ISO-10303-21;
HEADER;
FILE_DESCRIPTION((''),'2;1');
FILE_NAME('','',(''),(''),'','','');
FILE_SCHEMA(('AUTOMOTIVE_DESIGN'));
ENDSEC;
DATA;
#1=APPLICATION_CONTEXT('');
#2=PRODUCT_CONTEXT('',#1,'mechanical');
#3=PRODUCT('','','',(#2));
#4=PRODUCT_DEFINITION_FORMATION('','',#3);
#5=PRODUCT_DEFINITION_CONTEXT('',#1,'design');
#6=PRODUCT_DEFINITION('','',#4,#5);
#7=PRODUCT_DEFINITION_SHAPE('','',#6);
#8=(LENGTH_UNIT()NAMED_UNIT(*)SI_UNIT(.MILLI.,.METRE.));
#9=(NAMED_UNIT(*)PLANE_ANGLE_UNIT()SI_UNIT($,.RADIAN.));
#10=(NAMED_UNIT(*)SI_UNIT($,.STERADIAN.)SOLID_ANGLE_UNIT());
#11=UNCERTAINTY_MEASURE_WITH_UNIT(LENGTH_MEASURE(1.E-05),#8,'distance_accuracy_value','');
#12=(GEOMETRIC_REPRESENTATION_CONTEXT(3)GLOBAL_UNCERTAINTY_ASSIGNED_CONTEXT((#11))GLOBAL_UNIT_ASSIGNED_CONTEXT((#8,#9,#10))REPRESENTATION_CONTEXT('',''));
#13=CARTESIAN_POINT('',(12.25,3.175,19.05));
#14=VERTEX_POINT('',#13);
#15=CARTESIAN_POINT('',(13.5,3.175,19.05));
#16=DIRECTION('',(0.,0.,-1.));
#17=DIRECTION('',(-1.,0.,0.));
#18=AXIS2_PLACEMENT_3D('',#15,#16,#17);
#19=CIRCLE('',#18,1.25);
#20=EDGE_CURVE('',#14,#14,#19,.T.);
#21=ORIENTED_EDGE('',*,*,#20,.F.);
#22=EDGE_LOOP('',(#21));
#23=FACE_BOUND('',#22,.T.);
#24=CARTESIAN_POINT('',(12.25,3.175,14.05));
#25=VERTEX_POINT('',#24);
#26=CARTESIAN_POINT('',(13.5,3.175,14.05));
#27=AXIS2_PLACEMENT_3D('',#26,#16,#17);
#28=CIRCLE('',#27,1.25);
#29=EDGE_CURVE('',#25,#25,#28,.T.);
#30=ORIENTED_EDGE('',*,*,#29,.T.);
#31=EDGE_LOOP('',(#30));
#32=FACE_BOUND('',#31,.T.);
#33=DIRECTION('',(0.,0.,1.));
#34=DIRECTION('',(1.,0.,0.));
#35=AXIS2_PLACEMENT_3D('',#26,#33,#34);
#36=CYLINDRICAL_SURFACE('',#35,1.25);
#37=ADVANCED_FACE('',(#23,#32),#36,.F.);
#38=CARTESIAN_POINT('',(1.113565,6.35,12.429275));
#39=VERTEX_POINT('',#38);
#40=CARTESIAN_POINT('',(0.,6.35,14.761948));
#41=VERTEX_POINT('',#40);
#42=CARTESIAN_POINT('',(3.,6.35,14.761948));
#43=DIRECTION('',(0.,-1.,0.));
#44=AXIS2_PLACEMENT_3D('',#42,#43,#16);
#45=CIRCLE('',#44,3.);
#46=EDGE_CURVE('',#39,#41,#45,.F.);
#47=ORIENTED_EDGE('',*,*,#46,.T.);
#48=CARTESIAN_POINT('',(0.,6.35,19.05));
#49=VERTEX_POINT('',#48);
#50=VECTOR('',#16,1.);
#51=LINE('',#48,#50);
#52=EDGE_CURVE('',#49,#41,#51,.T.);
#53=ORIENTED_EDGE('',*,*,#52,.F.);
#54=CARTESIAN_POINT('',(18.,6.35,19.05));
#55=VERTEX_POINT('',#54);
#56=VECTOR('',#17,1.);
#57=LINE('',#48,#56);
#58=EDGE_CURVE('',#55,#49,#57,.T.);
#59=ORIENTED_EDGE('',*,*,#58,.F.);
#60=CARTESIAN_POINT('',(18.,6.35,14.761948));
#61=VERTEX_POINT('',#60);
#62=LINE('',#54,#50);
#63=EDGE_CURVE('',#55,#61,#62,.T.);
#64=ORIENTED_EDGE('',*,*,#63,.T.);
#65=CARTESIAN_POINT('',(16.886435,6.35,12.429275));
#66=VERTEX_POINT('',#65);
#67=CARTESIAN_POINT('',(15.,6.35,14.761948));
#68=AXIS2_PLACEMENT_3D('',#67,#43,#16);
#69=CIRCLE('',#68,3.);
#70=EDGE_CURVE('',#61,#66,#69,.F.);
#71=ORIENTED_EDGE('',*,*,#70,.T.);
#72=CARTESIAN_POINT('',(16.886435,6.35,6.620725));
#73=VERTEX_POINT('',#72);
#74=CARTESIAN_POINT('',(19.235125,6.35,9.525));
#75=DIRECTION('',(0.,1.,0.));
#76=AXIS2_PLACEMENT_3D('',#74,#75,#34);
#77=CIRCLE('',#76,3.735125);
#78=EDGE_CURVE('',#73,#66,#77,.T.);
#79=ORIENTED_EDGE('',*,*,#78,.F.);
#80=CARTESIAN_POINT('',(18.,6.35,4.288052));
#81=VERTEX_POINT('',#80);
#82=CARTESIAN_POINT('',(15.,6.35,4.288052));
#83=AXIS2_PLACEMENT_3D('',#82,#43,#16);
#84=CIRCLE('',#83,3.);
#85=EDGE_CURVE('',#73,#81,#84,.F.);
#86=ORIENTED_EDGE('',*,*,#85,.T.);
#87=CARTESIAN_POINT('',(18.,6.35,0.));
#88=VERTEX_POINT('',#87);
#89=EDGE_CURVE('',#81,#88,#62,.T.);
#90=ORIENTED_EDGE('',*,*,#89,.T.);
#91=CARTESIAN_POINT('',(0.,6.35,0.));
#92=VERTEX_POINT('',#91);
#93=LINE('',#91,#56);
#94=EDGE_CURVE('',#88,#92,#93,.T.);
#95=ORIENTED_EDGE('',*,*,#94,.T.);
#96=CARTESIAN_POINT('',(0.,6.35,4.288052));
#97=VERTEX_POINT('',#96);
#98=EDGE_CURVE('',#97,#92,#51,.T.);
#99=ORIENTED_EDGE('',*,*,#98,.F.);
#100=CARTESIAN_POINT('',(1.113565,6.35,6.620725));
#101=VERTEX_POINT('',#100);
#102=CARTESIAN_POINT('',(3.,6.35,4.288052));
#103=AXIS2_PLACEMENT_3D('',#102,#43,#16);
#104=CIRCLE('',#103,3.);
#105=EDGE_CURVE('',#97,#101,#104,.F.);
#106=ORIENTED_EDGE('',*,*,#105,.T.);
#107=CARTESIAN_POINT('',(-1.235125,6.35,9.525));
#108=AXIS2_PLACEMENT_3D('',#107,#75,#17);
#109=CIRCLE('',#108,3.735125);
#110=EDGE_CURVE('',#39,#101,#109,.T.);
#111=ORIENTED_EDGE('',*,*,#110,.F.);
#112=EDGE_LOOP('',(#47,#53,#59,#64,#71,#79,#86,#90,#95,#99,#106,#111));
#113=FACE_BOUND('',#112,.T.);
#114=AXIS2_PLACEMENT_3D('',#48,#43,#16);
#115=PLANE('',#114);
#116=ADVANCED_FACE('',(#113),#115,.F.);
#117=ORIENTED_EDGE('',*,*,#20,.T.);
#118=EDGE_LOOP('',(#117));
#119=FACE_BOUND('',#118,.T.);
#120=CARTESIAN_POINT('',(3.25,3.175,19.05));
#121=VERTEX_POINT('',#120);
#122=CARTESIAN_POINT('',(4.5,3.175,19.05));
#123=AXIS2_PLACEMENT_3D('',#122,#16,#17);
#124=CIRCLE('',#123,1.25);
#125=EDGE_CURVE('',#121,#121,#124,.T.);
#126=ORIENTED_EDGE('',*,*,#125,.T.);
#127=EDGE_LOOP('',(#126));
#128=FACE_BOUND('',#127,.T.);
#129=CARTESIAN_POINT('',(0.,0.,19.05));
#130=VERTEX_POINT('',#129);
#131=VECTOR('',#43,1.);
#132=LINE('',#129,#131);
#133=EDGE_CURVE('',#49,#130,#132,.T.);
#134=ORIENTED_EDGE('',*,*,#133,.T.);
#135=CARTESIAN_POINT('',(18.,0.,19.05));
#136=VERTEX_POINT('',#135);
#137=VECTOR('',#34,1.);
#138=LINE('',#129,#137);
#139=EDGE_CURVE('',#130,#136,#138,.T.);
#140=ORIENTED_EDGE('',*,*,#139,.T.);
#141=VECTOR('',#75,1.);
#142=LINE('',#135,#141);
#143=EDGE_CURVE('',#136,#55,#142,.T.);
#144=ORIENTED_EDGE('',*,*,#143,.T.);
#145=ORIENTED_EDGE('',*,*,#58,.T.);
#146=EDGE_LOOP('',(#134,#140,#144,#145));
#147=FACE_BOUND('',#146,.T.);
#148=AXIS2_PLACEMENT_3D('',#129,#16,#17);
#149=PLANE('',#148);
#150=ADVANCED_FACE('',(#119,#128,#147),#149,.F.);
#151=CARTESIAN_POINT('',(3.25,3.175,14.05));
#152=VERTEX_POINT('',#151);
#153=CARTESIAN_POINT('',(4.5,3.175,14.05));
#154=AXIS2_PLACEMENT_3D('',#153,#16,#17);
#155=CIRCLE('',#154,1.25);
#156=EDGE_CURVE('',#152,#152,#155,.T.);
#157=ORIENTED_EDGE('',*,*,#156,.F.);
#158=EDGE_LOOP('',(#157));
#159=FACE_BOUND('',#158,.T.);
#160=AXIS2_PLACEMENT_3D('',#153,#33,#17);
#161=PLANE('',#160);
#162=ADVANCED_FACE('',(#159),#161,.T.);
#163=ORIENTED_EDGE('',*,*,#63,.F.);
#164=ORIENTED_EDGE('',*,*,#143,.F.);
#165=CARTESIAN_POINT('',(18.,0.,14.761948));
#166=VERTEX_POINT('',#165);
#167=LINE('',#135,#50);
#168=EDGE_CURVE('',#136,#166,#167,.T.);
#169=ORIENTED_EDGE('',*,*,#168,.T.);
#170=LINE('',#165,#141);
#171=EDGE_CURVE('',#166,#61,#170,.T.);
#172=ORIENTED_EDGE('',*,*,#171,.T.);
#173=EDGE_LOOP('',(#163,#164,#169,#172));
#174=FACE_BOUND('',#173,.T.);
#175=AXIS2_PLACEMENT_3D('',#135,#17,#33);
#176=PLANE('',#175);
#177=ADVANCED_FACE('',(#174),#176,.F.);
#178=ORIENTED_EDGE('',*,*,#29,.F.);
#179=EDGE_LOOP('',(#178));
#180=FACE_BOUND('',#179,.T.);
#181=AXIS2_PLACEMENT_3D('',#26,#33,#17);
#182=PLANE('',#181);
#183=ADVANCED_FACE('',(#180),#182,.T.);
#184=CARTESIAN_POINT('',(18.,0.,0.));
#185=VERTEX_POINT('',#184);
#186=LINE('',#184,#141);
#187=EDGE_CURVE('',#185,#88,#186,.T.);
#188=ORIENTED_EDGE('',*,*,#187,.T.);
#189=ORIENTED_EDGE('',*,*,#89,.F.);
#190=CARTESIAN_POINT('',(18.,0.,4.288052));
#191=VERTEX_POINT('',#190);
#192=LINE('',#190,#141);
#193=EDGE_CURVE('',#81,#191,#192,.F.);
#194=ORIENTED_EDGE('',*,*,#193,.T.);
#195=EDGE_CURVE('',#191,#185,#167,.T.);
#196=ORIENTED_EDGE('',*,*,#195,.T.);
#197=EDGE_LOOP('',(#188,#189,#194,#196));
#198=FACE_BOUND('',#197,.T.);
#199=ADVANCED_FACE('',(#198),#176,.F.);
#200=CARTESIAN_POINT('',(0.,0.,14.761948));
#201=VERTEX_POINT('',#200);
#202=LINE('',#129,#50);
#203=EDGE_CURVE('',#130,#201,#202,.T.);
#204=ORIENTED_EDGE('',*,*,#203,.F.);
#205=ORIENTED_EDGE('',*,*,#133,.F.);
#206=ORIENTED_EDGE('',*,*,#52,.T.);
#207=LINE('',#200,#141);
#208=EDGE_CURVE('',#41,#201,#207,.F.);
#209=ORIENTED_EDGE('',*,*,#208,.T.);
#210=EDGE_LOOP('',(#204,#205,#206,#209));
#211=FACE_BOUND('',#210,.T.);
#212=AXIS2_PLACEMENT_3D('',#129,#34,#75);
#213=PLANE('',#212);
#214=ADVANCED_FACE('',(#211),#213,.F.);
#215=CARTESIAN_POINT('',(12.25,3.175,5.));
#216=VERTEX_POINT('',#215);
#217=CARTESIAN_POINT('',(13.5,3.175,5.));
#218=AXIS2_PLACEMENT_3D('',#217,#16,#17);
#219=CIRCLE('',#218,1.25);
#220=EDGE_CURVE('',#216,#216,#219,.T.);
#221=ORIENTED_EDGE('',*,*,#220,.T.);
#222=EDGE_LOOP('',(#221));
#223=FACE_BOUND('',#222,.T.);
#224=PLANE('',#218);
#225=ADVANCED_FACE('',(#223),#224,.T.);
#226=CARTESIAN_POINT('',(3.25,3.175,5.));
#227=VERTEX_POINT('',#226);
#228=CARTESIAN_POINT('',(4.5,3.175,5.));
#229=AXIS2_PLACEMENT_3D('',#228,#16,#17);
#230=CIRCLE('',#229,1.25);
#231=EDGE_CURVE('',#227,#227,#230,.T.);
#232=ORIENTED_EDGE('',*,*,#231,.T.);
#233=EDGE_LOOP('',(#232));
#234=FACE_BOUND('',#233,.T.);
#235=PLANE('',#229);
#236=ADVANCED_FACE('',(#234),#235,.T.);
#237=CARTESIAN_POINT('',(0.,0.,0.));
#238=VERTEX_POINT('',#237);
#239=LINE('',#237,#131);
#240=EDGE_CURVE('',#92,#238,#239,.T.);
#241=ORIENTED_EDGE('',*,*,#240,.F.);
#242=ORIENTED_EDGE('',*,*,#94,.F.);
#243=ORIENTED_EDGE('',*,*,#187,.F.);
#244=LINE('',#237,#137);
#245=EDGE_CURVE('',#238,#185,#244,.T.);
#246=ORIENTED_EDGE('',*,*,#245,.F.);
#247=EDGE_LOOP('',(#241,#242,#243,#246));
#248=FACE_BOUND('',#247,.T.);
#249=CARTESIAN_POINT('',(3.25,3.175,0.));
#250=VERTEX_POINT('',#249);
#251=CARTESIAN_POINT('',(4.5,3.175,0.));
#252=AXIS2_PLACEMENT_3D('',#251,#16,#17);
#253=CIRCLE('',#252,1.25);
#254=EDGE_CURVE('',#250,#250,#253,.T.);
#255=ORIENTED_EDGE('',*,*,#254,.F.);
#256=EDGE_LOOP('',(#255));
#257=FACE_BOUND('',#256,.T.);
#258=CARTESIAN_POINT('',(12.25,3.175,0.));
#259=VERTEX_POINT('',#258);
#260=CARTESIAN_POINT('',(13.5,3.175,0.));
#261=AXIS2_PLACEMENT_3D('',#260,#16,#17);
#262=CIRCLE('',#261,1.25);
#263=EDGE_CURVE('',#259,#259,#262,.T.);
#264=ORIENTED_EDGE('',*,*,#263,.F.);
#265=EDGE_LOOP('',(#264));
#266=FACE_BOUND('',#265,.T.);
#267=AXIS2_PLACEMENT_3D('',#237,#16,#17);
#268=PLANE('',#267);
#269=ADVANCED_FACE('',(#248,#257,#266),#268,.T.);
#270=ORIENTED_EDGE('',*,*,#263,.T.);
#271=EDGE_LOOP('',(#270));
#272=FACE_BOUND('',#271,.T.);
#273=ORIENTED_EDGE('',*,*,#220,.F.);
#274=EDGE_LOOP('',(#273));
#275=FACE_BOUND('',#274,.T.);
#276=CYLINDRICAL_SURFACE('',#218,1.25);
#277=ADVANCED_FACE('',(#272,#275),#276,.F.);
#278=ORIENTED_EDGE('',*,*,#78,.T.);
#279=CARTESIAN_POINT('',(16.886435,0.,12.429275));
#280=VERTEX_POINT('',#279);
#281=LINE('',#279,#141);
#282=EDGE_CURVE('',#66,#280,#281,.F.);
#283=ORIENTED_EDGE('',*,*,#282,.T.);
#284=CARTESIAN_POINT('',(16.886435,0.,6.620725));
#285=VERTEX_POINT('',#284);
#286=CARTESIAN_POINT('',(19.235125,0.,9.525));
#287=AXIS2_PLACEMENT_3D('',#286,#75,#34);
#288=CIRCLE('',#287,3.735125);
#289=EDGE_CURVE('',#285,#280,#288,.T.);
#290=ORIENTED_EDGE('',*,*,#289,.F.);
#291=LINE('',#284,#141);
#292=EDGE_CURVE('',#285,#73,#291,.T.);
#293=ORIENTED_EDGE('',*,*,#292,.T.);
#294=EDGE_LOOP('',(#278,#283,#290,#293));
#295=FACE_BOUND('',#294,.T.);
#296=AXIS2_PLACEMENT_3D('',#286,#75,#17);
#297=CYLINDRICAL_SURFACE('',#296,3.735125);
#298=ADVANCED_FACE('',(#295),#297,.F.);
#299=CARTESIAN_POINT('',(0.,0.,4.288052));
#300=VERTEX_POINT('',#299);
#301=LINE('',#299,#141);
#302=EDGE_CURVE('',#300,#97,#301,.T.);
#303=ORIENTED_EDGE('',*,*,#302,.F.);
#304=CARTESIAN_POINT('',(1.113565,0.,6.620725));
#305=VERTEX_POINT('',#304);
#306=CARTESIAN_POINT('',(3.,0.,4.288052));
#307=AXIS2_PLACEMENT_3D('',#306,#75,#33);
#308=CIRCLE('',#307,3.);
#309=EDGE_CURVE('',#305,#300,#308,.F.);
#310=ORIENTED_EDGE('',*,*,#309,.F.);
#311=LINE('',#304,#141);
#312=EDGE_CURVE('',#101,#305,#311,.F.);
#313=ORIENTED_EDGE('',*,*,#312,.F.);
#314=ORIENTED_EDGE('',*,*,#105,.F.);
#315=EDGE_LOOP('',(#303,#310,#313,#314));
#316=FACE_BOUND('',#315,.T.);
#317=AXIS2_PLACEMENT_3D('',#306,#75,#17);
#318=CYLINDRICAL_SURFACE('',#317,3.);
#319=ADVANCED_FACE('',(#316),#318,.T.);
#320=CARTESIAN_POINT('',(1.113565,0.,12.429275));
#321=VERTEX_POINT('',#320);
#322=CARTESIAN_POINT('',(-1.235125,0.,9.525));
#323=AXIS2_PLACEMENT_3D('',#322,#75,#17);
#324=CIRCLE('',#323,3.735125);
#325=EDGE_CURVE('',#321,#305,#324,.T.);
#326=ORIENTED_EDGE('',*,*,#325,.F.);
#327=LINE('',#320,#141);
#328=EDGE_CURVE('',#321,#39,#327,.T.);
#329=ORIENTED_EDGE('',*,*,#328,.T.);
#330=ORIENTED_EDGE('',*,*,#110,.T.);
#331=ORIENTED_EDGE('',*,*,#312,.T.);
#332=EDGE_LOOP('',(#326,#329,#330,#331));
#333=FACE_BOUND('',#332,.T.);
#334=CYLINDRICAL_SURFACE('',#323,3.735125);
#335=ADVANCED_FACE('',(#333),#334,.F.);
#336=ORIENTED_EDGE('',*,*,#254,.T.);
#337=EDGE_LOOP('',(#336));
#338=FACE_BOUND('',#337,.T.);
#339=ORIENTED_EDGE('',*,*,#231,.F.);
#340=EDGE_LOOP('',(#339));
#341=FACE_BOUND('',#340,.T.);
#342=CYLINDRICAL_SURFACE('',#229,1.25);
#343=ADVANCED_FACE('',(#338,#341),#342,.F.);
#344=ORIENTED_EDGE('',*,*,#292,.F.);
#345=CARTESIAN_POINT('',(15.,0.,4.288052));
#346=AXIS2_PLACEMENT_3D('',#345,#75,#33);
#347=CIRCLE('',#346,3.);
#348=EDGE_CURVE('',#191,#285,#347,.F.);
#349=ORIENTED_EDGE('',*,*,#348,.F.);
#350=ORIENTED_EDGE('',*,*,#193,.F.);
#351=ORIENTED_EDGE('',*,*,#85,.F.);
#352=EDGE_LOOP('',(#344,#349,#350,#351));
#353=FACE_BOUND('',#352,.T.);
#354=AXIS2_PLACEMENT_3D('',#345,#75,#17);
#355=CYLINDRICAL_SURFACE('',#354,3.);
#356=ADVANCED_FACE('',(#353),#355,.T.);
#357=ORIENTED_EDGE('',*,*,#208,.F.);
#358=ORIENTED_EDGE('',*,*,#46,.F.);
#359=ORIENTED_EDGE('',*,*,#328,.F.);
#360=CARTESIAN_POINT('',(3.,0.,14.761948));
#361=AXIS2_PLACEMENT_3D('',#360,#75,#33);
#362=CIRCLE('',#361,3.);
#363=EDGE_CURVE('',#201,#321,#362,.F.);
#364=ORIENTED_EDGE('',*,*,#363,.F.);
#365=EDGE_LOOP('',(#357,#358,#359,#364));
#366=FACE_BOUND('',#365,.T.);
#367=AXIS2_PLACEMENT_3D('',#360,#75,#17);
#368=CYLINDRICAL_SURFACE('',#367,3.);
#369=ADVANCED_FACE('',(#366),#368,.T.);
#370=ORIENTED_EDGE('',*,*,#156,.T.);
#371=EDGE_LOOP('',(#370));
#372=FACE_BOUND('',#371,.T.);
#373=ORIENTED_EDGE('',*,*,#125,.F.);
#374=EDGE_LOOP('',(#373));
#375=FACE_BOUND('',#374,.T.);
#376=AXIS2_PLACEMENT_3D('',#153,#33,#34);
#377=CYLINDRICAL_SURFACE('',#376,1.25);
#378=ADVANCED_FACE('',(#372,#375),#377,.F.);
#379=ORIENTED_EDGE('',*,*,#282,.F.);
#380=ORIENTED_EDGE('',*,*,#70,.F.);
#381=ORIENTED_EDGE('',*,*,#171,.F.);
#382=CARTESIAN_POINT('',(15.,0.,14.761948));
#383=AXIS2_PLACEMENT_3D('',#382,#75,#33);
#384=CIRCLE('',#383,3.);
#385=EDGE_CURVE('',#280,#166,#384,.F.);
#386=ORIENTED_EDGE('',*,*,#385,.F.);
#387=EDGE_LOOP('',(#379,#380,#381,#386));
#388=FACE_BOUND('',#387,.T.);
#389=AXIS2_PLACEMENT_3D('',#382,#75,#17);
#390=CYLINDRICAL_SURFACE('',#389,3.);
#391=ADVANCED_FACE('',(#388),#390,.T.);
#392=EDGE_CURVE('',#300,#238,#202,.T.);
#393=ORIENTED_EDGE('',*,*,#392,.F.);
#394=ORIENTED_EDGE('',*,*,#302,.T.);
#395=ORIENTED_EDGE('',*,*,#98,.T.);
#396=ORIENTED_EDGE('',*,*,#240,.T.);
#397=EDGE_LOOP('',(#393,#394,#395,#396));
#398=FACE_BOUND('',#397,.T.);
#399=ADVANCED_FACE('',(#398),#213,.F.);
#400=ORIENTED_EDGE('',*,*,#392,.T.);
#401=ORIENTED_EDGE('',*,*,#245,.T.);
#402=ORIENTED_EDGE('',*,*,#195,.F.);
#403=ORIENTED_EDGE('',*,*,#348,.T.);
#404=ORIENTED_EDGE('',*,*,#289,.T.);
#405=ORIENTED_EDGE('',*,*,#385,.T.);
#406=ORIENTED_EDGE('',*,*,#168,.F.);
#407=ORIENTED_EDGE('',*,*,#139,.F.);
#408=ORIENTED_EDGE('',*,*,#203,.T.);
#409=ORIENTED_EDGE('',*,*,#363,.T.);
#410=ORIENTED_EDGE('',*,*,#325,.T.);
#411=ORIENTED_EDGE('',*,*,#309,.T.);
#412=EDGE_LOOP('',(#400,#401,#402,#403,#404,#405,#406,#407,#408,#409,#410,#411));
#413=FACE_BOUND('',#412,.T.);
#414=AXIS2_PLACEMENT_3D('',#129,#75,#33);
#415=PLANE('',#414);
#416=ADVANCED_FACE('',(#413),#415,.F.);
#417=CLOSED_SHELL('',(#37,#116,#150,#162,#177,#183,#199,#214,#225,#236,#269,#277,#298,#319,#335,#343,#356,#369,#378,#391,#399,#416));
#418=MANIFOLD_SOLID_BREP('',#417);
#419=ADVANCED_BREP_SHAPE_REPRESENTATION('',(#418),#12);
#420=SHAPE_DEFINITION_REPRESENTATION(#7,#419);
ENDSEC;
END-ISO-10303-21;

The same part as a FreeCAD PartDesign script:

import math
import FreeCAD as App
import Part
import Sketcher
from FreeCAD import Vector


def edges_at(feature, points):
    """Names of the edges that pass closest to the given points."""
    edges = feature.Shape.Edges
    near = lambda p: min(range(len(edges)), key=lambda i: edges[i].distToShape(Part.Vertex(*p))[0])
    return sorted({f"Edge{near(p) + 1}" for p in points})


def add_polygon(sketch, points):
    """Adds a closed chain of lines whose ends are joined by coincident constraints."""
    first, n = sketch.GeometryCount, len(points)
    for a, b in zip(points, points[1:] + points[:1]):
        sketch.addGeometry(Part.LineSegment(App.Vector(*a, 0), App.Vector(*b, 0)), False)
    for i in range(n):
        sketch.addConstraint(Sketcher.Constraint("Coincident", first + i, 2, first + (i + 1) % n, 1))

doc = App.newDocument("Part")
body = doc.addObject("PartDesign::Body", "Body")

# Sketch on XY plane
sketch1 = body.newObject("Sketcher::SketchObject", "Sketch")
sketch1.AttachmentSupport = (doc.getObject("XY_Plane"), [""])
sketch1.MapMode = "FlatFace"
add_polygon(sketch1, [(0, 6.35), (0, 0), (18, 0), (18, 6.35)])  # lines 0-3
sketch1.addConstraint([
    Sketcher.Constraint("Vertical", 0),
    Sketcher.Constraint("Horizontal", 1),
    Sketcher.Constraint("Vertical", 2),
    Sketcher.Constraint("Horizontal", 3),
    Sketcher.Constraint("Coincident", 0, 2, -1, 1),
    Sketcher.Constraint("DistanceX", 1, 1, 1, 2, 18.0),
    Sketcher.Constraint("DistanceY", 0, 2, 0, 1, 6.35),
])
pad1 = body.newObject("PartDesign::Pad", "Pad")
pad1.Profile = sketch1
pad1.Length = 19.05

# Sketch on XZ plane
sketch2 = body.newObject("Sketcher::SketchObject", "Sketch001")
sketch2.AttachmentSupport = (doc.getObject("XZ_Plane"), [""])
sketch2.MapMode = "FlatFace"
sketch2.AttachmentOffset = App.Placement(Vector(0, 0, -6.35), App.Rotation())
sketch2.addGeometry([
    Part.LineSegment(Vector(18, 13.05, 0), Vector(18, 6, 0)),
    Part.ArcOfCircle(Part.Circle(Vector(19.235125, 9.525, 0), Vector(0, 0, 1), 3.735125), math.radians(109.309954), math.radians(250.690046)),
    Part.LineSegment(Vector(0, 6, 0), Vector(0, 13.05, 0)),
    Part.ArcOfCircle(Part.Circle(Vector(-1.235125, 9.525, 0), Vector(0, 0, 1), 3.735125), math.radians(-70.690046), math.radians(70.690046)),
], False)
sketch2.addConstraint([
    Sketcher.Constraint("Coincident", 0, 1, 1, 1),
    Sketcher.Constraint("Coincident", 1, 2, 0, 2),
    Sketcher.Constraint("Coincident", 2, 1, 3, 1),
    Sketcher.Constraint("Coincident", 3, 2, 2, 2),
    Sketcher.Constraint("Vertical", 0),
    Sketcher.Constraint("Vertical", 2),
    Sketcher.Constraint("Equal", 1, 3),
    Sketcher.Constraint("PointOnObject", 2, 1, -2),
    Sketcher.Constraint("Horizontal", 1, 3, 3, 3),
    Sketcher.Constraint("Horizontal", 1, 2, 2, 1),
    Sketcher.Constraint("DistanceX", -1, 1, 0, 1, 18.0),
    Sketcher.Constraint("DistanceY", -1, 1, 1, 2, 6.0),
    Sketcher.Constraint("DistanceY", 0, 2, 0, 1, 7.05),
    Sketcher.Constraint("Radius", 1, 3.735125),
])
pocket1 = body.newObject("PartDesign::Pocket", "Pocket")
pocket1.Profile = sketch2
pocket1.Type = "ThroughAll"
pocket1.Reversed = True

# Sketch on XY plane
sketch3 = body.newObject("Sketcher::SketchObject", "Sketch002")
sketch3.AttachmentSupport = (doc.getObject("XY_Plane"), [""])
sketch3.MapMode = "FlatFace"
sketch3.addGeometry([
    Part.Circle(Vector(13.5, 3.175, 0), Vector(0, 0, 1), 1.25),
    Part.Circle(Vector(4.5, 3.175, 0), Vector(0, 0, 1), 1.25),
], False)
sketch3.addConstraint([
    Sketcher.Constraint("Equal", 0, 1),
    Sketcher.Constraint("Horizontal", 0, 3, 1, 3),
    Sketcher.Constraint("Diameter", 0, 2.5),
    Sketcher.Constraint("DistanceX", 1, 3, 0, 3, 9.0),
    Sketcher.Constraint("DistanceX", -1, 1, 0, 3, 13.5),
    Sketcher.Constraint("DistanceY", -1, 1, 0, 3, 3.175),
])
pocket2 = body.newObject("PartDesign::Pocket", "Pocket001")
pocket2.Profile = sketch3
pocket2.Length = 5
pocket2.Reversed = True
doc.recompute()

datumplane = body.newObject("PartDesign::Plane", "DatumPlane")
datumplane.AttachmentSupport = (doc.getObject("XY_Plane"), [""])
datumplane.MapMode = "FlatFace"
datumplane.AttachmentOffset = App.Placement(Vector(0, 0, 9.525), App.Rotation())
mirrored = body.newObject("PartDesign::Mirrored", "Mirrored")
mirrored.Originals = [pocket2]
mirrored.MirrorPlane = (datumplane, [""])
body.Tip = mirrored
doc.recompute()

fillet = body.newObject("PartDesign::Fillet", "Fillet")
fillet.Base = (mirrored, edges_at(mirrored, [
    (18, 3.175, 13.05),
    (18, 3.175, 6),
    (0, 3.175, 6),
    (0, 3.175, 13.05),
]))
fillet.Radius = 3

doc.recompute()
